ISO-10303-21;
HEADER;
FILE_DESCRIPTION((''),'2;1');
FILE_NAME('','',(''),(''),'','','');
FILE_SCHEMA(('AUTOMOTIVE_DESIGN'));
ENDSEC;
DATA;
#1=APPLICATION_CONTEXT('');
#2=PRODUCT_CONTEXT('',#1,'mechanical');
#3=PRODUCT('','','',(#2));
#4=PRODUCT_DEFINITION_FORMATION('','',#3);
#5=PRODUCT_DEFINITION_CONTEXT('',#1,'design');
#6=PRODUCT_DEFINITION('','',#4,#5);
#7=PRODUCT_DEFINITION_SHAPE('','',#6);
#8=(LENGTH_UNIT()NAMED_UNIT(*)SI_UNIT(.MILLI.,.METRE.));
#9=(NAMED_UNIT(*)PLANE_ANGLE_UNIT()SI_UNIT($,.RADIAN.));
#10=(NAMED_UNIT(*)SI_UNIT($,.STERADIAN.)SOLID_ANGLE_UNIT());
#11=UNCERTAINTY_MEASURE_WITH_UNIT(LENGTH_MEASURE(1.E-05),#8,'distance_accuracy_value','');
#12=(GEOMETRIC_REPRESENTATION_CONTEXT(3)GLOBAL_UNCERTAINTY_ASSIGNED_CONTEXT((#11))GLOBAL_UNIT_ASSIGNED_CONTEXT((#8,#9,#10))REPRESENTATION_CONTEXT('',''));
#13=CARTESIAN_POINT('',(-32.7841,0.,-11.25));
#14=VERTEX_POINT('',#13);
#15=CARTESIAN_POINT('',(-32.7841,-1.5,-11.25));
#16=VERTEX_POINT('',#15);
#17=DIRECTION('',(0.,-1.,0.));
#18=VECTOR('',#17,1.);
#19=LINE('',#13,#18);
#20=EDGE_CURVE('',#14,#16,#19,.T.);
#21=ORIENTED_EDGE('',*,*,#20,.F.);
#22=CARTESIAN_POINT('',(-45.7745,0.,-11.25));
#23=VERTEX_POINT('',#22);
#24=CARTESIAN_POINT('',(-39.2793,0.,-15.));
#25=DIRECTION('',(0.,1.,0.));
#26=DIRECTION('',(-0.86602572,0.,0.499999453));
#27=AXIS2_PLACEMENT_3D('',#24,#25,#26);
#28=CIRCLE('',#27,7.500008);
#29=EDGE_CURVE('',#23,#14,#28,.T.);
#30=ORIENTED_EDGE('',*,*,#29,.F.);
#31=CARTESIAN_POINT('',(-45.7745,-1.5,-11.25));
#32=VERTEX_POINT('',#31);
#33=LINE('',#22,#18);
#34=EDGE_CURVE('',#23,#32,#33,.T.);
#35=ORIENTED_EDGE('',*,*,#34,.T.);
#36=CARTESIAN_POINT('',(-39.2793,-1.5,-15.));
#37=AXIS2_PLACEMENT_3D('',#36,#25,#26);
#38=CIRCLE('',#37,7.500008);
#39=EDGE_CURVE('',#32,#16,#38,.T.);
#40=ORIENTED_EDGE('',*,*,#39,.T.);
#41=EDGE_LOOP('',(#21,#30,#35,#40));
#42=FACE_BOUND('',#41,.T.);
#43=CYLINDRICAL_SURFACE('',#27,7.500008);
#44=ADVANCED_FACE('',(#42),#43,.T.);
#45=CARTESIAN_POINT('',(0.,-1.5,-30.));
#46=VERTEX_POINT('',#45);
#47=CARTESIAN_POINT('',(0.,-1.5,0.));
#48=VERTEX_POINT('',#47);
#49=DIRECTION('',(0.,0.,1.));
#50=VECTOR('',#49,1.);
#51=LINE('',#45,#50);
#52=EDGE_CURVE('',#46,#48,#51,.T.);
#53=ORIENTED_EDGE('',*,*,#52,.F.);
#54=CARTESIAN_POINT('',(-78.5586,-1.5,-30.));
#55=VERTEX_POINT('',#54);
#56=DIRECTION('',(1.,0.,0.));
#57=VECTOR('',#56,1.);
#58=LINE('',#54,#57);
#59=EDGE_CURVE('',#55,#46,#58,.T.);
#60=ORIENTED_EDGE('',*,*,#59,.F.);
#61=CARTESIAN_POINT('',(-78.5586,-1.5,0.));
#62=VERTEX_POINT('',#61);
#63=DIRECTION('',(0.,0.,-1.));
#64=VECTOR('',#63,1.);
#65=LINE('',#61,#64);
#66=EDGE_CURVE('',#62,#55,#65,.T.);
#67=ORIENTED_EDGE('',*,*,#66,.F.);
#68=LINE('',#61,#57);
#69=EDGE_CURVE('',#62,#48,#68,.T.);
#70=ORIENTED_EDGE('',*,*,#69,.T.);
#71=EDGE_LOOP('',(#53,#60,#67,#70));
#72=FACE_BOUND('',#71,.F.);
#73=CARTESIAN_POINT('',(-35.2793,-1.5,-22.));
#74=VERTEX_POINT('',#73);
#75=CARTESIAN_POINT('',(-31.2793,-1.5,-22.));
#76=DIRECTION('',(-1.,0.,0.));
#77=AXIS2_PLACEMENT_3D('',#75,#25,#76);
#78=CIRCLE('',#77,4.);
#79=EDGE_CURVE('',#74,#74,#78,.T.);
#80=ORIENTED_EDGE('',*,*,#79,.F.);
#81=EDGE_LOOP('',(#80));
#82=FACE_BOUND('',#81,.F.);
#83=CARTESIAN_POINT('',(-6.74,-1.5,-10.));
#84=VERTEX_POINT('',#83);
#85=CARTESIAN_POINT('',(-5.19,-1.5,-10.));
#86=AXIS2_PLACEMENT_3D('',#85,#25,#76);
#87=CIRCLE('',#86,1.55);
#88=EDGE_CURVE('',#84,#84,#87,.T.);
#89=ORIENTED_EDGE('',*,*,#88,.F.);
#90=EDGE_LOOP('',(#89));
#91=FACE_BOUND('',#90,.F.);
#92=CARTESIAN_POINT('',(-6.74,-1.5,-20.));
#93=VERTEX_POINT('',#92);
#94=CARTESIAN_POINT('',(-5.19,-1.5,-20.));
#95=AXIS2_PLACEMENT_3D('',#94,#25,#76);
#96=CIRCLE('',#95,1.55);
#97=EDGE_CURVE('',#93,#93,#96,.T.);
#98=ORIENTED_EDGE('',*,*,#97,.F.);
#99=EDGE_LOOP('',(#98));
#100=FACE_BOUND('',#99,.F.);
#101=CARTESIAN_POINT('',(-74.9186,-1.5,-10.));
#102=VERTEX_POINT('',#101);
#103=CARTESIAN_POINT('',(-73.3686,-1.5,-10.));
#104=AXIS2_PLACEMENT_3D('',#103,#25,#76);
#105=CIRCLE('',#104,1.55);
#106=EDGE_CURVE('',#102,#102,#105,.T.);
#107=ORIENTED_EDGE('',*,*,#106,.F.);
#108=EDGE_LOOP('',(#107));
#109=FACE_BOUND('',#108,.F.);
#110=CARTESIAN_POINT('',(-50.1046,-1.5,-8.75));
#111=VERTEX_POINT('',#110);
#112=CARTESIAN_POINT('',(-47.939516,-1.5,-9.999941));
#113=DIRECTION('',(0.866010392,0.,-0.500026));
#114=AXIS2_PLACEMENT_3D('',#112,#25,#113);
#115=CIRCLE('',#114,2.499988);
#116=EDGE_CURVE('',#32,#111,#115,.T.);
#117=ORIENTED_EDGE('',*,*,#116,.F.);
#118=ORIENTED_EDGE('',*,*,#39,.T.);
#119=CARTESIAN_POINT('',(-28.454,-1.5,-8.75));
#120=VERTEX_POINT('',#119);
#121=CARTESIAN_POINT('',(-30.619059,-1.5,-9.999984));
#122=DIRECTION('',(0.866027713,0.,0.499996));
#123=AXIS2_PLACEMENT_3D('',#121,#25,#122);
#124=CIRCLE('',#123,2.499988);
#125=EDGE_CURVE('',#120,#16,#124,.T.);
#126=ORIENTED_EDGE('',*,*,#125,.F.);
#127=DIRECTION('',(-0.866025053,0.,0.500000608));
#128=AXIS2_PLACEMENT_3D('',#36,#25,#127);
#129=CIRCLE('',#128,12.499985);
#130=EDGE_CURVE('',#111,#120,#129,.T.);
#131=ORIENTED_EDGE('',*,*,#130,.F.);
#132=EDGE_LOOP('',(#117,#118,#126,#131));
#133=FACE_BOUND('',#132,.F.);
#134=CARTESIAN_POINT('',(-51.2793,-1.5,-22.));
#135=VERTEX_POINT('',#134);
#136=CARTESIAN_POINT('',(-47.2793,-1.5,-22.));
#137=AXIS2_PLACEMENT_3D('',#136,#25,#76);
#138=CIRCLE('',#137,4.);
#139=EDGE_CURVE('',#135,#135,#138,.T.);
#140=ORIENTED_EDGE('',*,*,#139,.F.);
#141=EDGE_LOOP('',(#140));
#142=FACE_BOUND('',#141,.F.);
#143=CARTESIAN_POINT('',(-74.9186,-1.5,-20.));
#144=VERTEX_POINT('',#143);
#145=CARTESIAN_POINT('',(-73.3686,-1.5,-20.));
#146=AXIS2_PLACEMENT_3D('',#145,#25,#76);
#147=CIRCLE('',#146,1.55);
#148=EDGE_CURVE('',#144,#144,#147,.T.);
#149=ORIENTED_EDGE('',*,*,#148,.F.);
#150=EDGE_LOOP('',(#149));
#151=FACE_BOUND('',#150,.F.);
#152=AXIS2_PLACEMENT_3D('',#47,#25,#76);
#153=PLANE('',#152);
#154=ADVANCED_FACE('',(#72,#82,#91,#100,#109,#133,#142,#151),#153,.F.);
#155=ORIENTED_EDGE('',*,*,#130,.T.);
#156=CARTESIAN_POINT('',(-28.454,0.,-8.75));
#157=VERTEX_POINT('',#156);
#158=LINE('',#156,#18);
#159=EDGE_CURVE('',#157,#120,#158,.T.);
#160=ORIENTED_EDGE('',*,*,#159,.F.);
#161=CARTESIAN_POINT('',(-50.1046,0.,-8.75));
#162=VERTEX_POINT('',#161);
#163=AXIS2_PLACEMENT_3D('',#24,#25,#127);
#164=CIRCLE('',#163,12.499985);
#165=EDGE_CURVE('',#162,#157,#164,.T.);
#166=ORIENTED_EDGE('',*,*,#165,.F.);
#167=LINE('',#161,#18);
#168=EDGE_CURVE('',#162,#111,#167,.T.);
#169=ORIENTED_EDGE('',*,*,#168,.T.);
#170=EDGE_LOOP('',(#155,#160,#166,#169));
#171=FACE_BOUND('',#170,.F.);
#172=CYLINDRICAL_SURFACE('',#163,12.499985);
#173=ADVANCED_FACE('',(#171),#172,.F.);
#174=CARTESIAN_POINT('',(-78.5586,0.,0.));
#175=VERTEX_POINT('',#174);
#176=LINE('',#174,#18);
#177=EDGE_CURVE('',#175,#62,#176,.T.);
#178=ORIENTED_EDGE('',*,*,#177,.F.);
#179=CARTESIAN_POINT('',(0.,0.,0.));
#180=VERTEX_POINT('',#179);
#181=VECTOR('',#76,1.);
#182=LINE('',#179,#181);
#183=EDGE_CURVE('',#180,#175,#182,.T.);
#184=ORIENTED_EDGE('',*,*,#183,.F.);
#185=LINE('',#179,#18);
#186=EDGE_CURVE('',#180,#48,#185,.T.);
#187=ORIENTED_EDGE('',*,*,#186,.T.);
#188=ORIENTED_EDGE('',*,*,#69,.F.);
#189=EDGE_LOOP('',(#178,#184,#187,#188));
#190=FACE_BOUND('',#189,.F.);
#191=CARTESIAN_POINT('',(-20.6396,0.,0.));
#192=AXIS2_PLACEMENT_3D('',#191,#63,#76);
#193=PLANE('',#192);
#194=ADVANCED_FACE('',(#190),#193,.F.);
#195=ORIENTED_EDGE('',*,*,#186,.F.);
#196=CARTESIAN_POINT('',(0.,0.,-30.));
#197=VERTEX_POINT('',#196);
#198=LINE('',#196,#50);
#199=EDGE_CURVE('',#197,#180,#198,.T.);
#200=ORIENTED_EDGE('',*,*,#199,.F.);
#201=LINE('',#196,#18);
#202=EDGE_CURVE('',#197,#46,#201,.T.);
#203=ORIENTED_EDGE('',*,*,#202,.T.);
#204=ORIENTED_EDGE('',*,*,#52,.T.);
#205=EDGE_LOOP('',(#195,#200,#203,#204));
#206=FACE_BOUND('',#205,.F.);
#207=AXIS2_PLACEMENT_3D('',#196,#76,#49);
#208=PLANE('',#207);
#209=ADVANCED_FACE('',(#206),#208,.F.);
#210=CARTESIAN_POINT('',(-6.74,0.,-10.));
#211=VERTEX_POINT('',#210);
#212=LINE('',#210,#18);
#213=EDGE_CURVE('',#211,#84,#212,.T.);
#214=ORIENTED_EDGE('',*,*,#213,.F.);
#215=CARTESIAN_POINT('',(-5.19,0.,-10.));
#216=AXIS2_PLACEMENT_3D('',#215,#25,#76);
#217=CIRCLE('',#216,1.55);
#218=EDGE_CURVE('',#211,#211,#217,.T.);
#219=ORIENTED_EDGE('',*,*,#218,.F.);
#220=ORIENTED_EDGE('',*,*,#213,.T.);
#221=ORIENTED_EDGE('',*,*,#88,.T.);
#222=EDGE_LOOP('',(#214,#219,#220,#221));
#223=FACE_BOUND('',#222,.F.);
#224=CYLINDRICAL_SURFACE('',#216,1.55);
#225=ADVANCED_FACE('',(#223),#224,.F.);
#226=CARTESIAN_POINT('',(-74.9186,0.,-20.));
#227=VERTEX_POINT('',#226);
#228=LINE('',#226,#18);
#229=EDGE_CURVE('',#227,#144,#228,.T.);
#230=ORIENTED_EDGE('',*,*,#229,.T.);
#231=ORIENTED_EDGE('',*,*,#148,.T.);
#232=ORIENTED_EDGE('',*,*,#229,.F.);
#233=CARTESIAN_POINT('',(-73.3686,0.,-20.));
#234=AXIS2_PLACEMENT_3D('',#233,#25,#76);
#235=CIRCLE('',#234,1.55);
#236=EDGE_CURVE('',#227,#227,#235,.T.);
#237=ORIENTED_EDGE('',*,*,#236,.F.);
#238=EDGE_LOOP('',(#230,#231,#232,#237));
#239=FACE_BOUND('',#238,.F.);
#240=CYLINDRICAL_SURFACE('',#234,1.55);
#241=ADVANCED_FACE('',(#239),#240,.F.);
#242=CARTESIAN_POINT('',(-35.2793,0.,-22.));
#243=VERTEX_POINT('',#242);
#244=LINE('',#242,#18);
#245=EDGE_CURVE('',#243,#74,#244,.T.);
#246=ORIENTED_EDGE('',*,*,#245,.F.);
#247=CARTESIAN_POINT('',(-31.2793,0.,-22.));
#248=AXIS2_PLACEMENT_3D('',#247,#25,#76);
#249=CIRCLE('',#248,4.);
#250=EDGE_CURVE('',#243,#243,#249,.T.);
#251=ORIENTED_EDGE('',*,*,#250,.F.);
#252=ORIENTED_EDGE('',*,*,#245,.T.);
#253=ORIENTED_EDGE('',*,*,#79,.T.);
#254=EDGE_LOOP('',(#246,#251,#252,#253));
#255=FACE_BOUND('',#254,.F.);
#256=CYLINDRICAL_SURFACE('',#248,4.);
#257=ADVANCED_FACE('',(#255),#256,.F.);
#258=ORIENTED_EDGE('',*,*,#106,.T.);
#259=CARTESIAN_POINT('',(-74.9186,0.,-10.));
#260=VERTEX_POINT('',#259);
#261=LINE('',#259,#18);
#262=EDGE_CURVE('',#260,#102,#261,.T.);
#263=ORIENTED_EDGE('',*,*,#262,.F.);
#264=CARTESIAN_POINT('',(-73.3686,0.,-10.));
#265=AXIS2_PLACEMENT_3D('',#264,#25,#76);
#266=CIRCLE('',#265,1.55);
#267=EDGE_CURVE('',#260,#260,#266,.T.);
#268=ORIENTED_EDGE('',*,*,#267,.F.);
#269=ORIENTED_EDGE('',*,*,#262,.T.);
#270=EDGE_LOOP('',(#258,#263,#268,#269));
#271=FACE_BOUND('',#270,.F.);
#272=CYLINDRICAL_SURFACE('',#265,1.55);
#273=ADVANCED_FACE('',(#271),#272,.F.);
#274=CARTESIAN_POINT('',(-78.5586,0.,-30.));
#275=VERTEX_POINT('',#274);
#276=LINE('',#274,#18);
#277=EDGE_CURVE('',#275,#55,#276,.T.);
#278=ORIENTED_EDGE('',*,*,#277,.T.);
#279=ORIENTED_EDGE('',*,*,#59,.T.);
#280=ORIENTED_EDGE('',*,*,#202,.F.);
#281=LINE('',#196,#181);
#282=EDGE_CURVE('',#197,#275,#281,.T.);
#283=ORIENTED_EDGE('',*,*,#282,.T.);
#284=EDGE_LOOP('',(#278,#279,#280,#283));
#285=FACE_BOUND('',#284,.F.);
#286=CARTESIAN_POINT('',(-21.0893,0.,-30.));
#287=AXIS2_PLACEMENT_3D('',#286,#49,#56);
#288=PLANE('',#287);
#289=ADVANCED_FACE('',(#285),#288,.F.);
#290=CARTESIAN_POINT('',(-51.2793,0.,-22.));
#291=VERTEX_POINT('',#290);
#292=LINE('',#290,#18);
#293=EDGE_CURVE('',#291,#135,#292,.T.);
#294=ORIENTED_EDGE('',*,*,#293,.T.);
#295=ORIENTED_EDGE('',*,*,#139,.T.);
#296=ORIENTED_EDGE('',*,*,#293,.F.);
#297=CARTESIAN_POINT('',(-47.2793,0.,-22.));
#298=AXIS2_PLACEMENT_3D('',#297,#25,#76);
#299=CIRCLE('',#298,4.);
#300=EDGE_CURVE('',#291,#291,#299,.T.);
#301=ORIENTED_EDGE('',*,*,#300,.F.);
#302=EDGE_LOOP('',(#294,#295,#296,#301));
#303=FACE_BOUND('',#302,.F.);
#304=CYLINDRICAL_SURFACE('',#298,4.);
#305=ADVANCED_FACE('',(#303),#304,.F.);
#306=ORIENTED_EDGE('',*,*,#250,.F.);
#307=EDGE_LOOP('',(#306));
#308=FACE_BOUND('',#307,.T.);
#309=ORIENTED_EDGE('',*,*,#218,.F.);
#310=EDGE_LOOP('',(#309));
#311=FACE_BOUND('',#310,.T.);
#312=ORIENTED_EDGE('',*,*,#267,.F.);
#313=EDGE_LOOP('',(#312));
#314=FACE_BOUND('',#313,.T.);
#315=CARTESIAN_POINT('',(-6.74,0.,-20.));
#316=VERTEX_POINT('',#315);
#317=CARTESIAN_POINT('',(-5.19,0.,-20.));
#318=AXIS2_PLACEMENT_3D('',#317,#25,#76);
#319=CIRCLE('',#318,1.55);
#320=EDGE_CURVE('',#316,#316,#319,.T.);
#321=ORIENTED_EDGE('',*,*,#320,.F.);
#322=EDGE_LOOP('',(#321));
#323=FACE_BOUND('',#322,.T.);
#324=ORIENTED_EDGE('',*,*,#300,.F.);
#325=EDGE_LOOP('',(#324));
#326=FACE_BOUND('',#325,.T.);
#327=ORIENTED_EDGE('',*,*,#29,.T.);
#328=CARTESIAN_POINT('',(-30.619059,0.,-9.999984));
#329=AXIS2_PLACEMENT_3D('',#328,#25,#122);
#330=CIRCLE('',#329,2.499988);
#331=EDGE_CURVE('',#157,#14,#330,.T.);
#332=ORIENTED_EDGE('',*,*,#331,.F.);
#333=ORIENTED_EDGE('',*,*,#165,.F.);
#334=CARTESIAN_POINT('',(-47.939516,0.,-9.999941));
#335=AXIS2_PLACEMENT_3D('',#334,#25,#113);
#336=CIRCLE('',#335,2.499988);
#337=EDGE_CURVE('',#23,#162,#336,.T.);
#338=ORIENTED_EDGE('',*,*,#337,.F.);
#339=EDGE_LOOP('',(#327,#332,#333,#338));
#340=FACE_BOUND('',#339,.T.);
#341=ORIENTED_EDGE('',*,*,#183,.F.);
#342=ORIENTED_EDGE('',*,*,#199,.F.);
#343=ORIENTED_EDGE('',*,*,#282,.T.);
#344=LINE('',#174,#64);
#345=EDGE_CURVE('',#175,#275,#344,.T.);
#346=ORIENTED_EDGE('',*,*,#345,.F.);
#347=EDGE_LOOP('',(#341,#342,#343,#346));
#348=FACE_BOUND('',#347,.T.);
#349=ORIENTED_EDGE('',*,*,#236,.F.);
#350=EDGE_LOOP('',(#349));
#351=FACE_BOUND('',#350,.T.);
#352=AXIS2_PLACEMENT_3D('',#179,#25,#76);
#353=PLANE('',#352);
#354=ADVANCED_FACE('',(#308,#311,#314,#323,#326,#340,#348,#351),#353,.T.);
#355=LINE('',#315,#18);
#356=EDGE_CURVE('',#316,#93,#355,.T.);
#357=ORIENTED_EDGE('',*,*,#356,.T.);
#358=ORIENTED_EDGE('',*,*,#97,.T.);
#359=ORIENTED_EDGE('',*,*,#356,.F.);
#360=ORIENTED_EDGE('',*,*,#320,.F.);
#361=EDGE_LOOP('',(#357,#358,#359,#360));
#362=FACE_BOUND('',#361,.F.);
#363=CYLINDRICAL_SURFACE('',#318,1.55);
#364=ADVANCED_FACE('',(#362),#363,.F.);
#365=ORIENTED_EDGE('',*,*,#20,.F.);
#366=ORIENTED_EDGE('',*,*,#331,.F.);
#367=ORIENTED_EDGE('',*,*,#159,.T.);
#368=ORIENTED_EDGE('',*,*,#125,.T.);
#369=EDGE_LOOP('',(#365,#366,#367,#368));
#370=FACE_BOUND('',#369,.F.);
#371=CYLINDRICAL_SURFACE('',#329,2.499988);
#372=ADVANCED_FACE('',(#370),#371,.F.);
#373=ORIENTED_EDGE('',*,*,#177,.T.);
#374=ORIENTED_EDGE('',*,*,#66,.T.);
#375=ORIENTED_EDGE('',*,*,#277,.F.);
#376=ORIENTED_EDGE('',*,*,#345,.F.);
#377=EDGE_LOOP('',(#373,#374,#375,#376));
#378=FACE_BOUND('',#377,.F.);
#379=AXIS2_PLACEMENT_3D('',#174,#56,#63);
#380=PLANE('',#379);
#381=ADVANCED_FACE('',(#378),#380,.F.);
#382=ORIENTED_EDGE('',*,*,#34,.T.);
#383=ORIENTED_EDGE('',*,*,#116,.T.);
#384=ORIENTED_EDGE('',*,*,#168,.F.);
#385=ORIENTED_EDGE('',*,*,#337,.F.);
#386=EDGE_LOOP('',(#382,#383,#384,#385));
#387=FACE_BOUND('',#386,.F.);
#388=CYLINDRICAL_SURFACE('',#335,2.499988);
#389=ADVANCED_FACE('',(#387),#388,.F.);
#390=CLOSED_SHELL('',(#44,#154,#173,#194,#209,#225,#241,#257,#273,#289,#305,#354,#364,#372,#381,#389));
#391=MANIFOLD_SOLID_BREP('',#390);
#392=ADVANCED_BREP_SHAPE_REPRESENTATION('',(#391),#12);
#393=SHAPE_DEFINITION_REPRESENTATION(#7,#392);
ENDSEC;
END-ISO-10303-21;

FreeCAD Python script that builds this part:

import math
import FreeCAD as App
import Part
import Sketcher

V = App.Vector
Q = App.Units.Quantity


def add_polygon(sketch, points):
    """Adds a closed chain of lines whose ends are joined by coincident constraints."""
    first, n = sketch.GeometryCount, len(points)
    for a, b in zip(points, points[1:] + points[:1]):
        sketch.addGeometry(Part.LineSegment(App.Vector(*a, 0), App.Vector(*b, 0)), False)
    for i in range(n):
        sketch.addConstraint(Sketcher.Constraint("Coincident", first + i, 2, first + (i + 1) % n, 1))

doc = App.newDocument("Part")
body = doc.addObject("PartDesign::Body", "Body")

# Sketch on XZ plane
sketch1 = body.newObject("Sketcher::SketchObject", "Sketch")
sketch1.AttachmentSupport = (doc.getObject("XZ_Plane"), [""])
sketch1.MapMode = "FlatFace"
add_polygon(sketch1, [(0, 0), (0, -30), (-78.5586, -30), (-78.5586, 0)])  # lines 0-3
sketch1.addGeometry(Part.ArcOfCircle(Part.Circle(V(-47.9395, -10, 0), V(0, 0, 1), 2.499945), math.radians(150.000418), math.radians(329.999272)), False)  # 4
sketch1.addGeometry(Part.ArcOfCircle(Part.Circle(V(-39.2793, -15, 0), V(0, 0, 1), 7.500008), math.radians(29.999964), math.radians(150.000036)), False)  # 5
sketch1.addGeometry(Part.ArcOfCircle(Part.Circle(V(-30.619, -10, 0), V(0, 0, 1), 2.499945), math.radians(-150.000418), math.radians(30.000728)), False)  # 6
sketch1.addGeometry(Part.ArcOfCircle(Part.Circle(V(-39.2793, -15, 0), V(0, 0, 1), 12.499985), math.radians(30.00004), math.radians(149.99996)), False)  # 7
sketch1.addGeometry(Part.Circle(V(-31.2793, -22, 0), V(0, 0, 1), 4), False)  # 8
sketch1.addGeometry(Part.Circle(V(-47.2793, -22, 0), V(0, 0, 1), 4), False)  # 9
sketch1.addGeometry(Part.Circle(V(-5.19, -10, 0), V(0, 0, 1), 1.55), False)  # 10
sketch1.addGeometry(Part.Circle(V(-5.19, -20, 0), V(0, 0, 1), 1.55), False)  # 11
sketch1.addGeometry(Part.Circle(V(-73.3686, -10, 0), V(0, 0, 1), 1.55), False)  # 12
sketch1.addGeometry(Part.Circle(V(-73.3686, -20, 0), V(0, 0, 1), 1.55), False)  # 13
sketch1.addConstraint([
    Sketcher.Constraint("Tangent", 4, 2, 5, 2),
    Sketcher.Constraint("Tangent", 5, 1, 6, 1),
    Sketcher.Constraint("Tangent", 6, 2, 7, 1),
    Sketcher.Constraint("Tangent", 7, 2, 4, 1),
    Sketcher.Constraint("Vertical", 0),
    Sketcher.Constraint("Horizontal", 1),
    Sketcher.Constraint("Vertical", 2),
    Sketcher.Constraint("Horizontal", 3),
    Sketcher.Constraint("Coincident", 3, 2, -1, 1),
    Sketcher.Constraint("Coincident", 7, 3, 5, 3),
    Sketcher.Constraint("Equal", 8, 9),
    Sketcher.Constraint("Equal", 10, 11),
    Sketcher.Constraint("Equal", 11, 12),
    Sketcher.Constraint("Equal", 12, 13),
    Sketcher.Constraint("Horizontal", 4, 3, 6, 3),
    Sketcher.Constraint("Horizontal", 8, 3, 9, 3),
    Sketcher.Constraint("Horizontal", 6, 3, 10, 3),
    Sketcher.Constraint("Horizontal", 10, 3, 12, 3),
    Sketcher.Constraint("Horizontal", 11, 3, 13, 3),
    Sketcher.Constraint("Vertical", 10, 3, 11, 3),
    Sketcher.Constraint("Vertical", 12, 3, 13, 3),
    Sketcher.Constraint("Diameter", 8, Q("8 mm")),
    Sketcher.Constraint("Diameter", 10, Q("3.1 mm")),
    Sketcher.Constraint("Radius", 4, Q("2.5 mm")),
    Sketcher.Constraint("Radius", 5, Q("7.5 mm")),
    Sketcher.Constraint("DistanceY", 0, 2, 0, 1, Q("30 mm")),
    Sketcher.Constraint("DistanceY", 4, 3, -1, 1, Q("10 mm")),
    Sketcher.Constraint("DistanceY", 5, 3, -1, 1, Q("15 mm")),
    Sketcher.Constraint("DistanceY", 8, 3, -1, 1, Q("22 mm")),
    Sketcher.Constraint("DistanceY", 11, 3, -1, 1, Q("20 mm")),
    Sketcher.Constraint("DistanceX", 5, 3, 8, 3, Q("8 mm")),
    Sketcher.Constraint("DistanceX", 9, 3, 5, 3, Q("8 mm")),
    Sketcher.Constraint("DistanceX", 10, 3, -1, 1, Q("5.19 mm")),
    Sketcher.Constraint("DistanceX", 1, 2, 13, 3, Q("5.19 mm")),
    Sketcher.Constraint("DistanceX", 1, 2, 1, 1, Q("78.5586 mm")),
    Sketcher.Constraint("DistanceX", 6, 3, -1, 1, Q("30.619 mm")),
])
pad1 = body.newObject("PartDesign::Pad", "Pad")
pad1.Profile = sketch1
pad1.Length = 1.5

doc.recompute()
